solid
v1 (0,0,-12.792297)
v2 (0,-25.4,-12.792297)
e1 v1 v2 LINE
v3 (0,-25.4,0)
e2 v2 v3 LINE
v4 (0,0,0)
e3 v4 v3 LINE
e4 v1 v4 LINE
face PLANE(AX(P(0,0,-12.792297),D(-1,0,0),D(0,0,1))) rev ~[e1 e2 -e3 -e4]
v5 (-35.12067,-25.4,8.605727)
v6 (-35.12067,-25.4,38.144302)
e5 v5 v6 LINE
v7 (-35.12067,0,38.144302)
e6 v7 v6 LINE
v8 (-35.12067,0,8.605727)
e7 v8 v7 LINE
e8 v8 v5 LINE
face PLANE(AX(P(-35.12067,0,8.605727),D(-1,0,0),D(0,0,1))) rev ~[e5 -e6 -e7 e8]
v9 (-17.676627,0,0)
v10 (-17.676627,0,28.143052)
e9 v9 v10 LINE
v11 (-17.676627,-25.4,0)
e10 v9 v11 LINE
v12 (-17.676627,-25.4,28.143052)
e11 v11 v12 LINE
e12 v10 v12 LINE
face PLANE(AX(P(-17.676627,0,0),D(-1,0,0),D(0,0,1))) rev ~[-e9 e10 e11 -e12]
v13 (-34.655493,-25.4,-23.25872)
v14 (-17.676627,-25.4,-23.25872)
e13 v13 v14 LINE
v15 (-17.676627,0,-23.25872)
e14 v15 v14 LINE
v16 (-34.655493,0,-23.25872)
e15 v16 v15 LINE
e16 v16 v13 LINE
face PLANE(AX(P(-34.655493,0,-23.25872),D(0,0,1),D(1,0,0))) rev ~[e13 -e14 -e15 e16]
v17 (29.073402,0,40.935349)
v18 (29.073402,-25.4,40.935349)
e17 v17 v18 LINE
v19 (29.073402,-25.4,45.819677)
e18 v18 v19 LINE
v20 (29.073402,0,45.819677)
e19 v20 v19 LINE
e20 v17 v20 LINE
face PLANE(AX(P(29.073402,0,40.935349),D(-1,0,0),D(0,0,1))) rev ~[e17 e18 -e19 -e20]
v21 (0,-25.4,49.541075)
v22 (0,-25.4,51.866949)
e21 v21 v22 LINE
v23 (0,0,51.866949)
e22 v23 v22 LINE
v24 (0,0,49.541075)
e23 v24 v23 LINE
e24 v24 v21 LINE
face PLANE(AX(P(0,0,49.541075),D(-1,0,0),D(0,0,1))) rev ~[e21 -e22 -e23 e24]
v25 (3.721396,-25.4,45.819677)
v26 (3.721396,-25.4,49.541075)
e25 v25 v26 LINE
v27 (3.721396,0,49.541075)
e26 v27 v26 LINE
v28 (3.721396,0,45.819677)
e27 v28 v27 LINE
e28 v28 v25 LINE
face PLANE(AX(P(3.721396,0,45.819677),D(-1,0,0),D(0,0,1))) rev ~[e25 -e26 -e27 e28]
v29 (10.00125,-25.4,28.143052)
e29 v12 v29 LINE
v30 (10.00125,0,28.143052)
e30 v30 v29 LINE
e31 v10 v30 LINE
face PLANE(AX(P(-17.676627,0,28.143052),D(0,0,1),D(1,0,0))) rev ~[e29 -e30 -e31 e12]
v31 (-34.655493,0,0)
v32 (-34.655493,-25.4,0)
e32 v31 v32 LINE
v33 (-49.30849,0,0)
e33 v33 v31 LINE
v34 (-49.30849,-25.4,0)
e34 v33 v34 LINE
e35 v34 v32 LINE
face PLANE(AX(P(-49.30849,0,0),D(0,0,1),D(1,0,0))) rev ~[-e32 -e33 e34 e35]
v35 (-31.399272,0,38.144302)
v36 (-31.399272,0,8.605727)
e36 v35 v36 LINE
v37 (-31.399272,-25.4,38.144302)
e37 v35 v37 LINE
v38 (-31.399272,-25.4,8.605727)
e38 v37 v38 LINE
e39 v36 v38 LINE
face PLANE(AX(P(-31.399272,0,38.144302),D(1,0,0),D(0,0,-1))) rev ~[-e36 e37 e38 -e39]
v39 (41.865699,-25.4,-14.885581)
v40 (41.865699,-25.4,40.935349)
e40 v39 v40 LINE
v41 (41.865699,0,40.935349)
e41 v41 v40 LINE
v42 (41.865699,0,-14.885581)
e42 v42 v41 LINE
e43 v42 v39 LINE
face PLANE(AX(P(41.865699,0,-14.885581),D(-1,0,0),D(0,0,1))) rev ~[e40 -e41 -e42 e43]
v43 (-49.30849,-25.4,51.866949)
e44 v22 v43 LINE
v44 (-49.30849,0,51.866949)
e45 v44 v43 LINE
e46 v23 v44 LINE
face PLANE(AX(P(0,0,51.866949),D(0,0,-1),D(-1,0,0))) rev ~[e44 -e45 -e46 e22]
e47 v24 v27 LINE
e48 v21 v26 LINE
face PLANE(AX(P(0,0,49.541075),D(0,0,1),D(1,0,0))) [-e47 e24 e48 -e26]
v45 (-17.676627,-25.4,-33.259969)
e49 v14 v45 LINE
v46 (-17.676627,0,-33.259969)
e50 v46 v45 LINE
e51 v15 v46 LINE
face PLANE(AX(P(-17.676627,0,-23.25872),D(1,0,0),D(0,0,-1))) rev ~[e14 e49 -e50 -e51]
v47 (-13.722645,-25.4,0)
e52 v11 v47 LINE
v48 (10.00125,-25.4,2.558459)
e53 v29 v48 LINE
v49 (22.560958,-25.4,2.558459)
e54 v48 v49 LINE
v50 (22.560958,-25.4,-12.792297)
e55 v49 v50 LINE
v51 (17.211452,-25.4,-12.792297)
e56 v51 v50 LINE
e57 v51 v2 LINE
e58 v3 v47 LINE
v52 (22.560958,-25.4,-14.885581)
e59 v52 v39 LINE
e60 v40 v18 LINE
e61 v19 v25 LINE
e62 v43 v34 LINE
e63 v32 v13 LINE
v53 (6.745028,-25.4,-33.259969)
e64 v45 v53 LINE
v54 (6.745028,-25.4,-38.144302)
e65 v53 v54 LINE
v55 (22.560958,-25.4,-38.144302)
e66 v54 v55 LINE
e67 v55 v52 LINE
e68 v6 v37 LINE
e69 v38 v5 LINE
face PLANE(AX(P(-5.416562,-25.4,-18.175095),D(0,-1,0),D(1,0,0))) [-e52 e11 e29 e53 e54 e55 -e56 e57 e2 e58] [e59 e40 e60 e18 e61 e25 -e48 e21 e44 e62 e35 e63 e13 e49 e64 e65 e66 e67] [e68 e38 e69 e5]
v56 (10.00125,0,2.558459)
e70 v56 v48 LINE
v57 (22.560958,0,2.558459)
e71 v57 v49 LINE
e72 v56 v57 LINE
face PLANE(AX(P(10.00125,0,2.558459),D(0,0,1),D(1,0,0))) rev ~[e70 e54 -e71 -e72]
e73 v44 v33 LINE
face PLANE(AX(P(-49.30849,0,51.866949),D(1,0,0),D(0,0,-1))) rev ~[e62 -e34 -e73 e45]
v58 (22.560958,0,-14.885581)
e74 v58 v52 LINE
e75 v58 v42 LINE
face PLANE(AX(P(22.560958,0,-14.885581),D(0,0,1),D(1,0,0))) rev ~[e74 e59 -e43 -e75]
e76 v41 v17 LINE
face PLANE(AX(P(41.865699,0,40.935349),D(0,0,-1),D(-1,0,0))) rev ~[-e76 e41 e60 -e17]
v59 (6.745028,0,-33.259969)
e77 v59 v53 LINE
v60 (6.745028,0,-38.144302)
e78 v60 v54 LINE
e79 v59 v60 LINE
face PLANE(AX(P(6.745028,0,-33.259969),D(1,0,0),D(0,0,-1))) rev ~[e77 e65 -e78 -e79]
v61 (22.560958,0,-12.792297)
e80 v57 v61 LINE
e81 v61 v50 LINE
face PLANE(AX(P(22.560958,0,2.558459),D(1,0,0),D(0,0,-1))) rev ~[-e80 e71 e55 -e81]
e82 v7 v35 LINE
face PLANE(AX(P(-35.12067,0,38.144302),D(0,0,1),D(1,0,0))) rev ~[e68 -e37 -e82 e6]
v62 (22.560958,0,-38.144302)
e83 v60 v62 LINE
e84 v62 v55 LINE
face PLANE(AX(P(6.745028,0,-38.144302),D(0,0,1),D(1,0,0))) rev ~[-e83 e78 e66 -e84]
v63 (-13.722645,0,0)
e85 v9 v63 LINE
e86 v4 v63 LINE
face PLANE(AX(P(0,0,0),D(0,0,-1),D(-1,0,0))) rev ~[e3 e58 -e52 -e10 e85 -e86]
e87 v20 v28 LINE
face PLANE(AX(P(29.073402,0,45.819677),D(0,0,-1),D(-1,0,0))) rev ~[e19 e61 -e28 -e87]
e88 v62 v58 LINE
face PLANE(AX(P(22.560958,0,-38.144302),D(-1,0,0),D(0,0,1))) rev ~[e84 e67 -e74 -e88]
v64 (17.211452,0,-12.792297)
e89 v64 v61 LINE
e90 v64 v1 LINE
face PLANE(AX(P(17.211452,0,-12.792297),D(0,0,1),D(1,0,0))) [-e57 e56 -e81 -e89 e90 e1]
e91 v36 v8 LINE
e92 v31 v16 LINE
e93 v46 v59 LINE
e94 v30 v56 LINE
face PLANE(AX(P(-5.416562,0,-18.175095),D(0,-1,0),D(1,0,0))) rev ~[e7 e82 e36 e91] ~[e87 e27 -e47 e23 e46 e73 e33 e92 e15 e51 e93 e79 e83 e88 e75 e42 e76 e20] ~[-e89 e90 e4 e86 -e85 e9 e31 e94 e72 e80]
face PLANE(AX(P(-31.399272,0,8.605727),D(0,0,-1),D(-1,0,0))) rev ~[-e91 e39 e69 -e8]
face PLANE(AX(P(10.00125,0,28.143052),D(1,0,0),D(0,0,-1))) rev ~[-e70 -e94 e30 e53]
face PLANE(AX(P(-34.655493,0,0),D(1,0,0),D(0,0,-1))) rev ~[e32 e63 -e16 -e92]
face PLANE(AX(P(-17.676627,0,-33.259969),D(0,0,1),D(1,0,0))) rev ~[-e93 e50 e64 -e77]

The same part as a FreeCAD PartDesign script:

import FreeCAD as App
import Part
import Sketcher

V = App.Vector
Q = App.Units.Quantity

doc = App.newDocument("Part")
body = doc.addObject("PartDesign::Body", "Body")

# Sketch on XZ plane
sketch1 = body.newObject("Sketcher::SketchObject", "Sketch")
sketch1.AttachmentSupport = (doc.getObject("XZ_Plane"), [""])
sketch1.MapMode = "FlatFace"
sketch1.addGeometry([
    Part.LineSegment(V(-49.3, 51.9, 0), V(-49.3, 0, 0)),  # 0
    Part.LineSegment(V(-49.3, 0, 0), V(-34.7, 0, 0)),  # 1
    Part.LineSegment(V(-34.7, 0, 0), V(-34.7, -23.3, 0)),  # 2
    Part.LineSegment(V(-34.7, -23.3, 0), V(-17.7, -23.3, 0)),  # 3
    Part.LineSegment(V(-17.7, -23.3, 0), V(-17.7, -33.3, 0)),  # 4
    Part.LineSegment(V(-17.7, -33.3, 0), V(6.7, -33.3, 0)),  # 5
    Part.LineSegment(V(6.7, -33.3, 0), V(6.7, -38.1, 0)),  # 6
    Part.LineSegment(V(6.7, -38.1, 0), V(22.6, -38.1, 0)),  # 7
    Part.LineSegment(V(22.6, -38.1, 0), V(22.6, -14.9, 0)),  # 8
    Part.LineSegment(V(22.6, -14.9, 0), V(41.9, -14.9, 0)),  # 9
    Part.LineSegment(V(41.9, -14.9, 0), V(41.9, 40.9, 0)),  # 10
    Part.LineSegment(V(41.9, 40.9, 0), V(29.1, 40.9, 0)),  # 11
    Part.LineSegment(V(29.1, 40.9, 0), V(29.1, 45.8, 0)),  # 12
    Part.LineSegment(V(29.1, 45.8, 0), V(3.7, 45.8, 0)),  # 13
    Part.LineSegment(V(3.7, 45.8, 0), V(3.7, 49.5, 0)),  # 14
    Part.LineSegment(V(3.7, 49.5, 0), V(0, 49.5, 0)),  # 15
    Part.LineSegment(V(0, 49.5, 0), V(0, 51.9, 0)),  # 16
    Part.LineSegment(V(0, 51.9, 0), V(-49.3, 51.9, 0)),  # 17
    Part.LineSegment(V(10, 2.6, 0), V(22.6, 2.6, 0)),  # 18
    Part.LineSegment(V(22.6, 2.6, 0), V(22.6, -12.8, 0)),  # 19
    Part.LineSegment(V(22.6, -12.8, 0), V(17.2, -12.8, 0)),  # 20
    Part.LineSegment(V(17.2, -12.8, 0), V(0, -12.8, 0)),  # 21
    Part.LineSegment(V(0, -12.8, 0), V(0, 0, 0)),  # 22
    Part.LineSegment(V(0, 0, 0), V(-13.7, 0, 0)),  # 23
    Part.LineSegment(V(-13.7, 0, 0), V(-17.7, 0, 0)),  # 24
    Part.LineSegment(V(-17.7, 0, 0), V(-17.7, 28.1, 0)),  # 25
    Part.LineSegment(V(-17.7, 28.1, 0), V(10, 28.1, 0)),  # 26
    Part.LineSegment(V(10, 28.1, 0), V(10, 2.6, 0)),  # 27
    Part.LineSegment(V(-31.4, 8.6, 0), V(-35.1, 8.6, 0)),  # 28
    Part.LineSegment(V(-35.1, 8.6, 0), V(-35.1, 38.1, 0)),  # 29
    Part.LineSegment(V(-35.1, 38.1, 0), V(-31.4, 38.1, 0)),  # 30
    Part.LineSegment(V(-31.4, 38.1, 0), V(-31.4, 8.6, 0)),  # 31
], False)
sketch1.addConstraint([
    Sketcher.Constraint("Coincident", 0, 2, 1, 1),
    Sketcher.Constraint("Coincident", 1, 2, 2, 1),
    Sketcher.Constraint("Coincident", 2, 2, 3, 1),
    Sketcher.Constraint("Coincident", 3, 2, 4, 1),
    Sketcher.Constraint("Coincident", 4, 2, 5, 1),
    Sketcher.Constraint("Coincident", 5, 2, 6, 1),
    Sketcher.Constraint("Coincident", 6, 2, 7, 1),
    Sketcher.Constraint("Coincident", 7, 2, 8, 1),
    Sketcher.Constraint("Coincident", 8, 2, 9, 1),
    Sketcher.Constraint("Coincident", 9, 2, 10, 1),
    Sketcher.Constraint("Coincident", 10, 2, 11, 1),
    Sketcher.Constraint("Coincident", 11, 2, 12, 1),
    Sketcher.Constraint("Coincident", 12, 2, 13, 1),
    Sketcher.Constraint("Coincident", 13, 2, 14, 1),
    Sketcher.Constraint("Coincident", 14, 2, 15, 1),
    Sketcher.Constraint("Coincident", 15, 2, 16, 1),
    Sketcher.Constraint("Coincident", 16, 2, 17, 1),
    Sketcher.Constraint("Coincident", 17, 2, 0, 1),
    Sketcher.Constraint("Coincident", 18, 2, 19, 1),
    Sketcher.Constraint("Coincident", 19, 2, 20, 1),
    Sketcher.Constraint("Coincident", 20, 2, 21, 1),
    Sketcher.Constraint("Coincident", 21, 2, 22, 1),
    Sketcher.Constraint("Coincident", 22, 2, 23, 1),
    Sketcher.Constraint("Coincident", 23, 2, 24, 1),
    Sketcher.Constraint("Coincident", 24, 2, 25, 1),
    Sketcher.Constraint("Coincident", 25, 2, 26, 1),
    Sketcher.Constraint("Coincident", 26, 2, 27, 1),
    Sketcher.Constraint("Coincident", 27, 2, 18, 1),
    Sketcher.Constraint("Coincident", 28, 2, 29, 1),
    Sketcher.Constraint("Coincident", 29, 2, 30, 1),
    Sketcher.Constraint("Coincident", 30, 2, 31, 1),
    Sketcher.Constraint("Coincident", 31, 2, 28, 1),
    Sketcher.Constraint("Vertical", 0),
    Sketcher.Constraint("Horizontal", 1),
    Sketcher.Constraint("Vertical", 2),
    Sketcher.Constraint("Horizontal", 3),
    Sketcher.Constraint("Vertical", 4),
    Sketcher.Constraint("Horizontal", 5),
    Sketcher.Constraint("Vertical", 6),
    Sketcher.Constraint("Horizontal", 7),
    Sketcher.Constraint("Vertical", 8),
    Sketcher.Constraint("Horizontal", 9),
    Sketcher.Constraint("Vertical", 10),
    Sketcher.Constraint("Horizontal", 11),
    Sketcher.Constraint("Vertical", 12),
    Sketcher.Constraint("Horizontal", 13),
    Sketcher.Constraint("Vertical", 14),
    Sketcher.Constraint("Horizontal", 15),
    Sketcher.Constraint("Vertical", 16),
    Sketcher.Constraint("Horizontal", 17),
    Sketcher.Constraint("Horizontal", 18),
    Sketcher.Constraint("Vertical", 19),
    Sketcher.Constraint("Horizontal", 20),
    Sketcher.Constraint("Horizontal", 21),
    Sketcher.Constraint("Vertical", 22),
    Sketcher.Constraint("Horizontal", 23),
    Sketcher.Constraint("Horizontal", 24),
    Sketcher.Constraint("Vertical", 25),
    Sketcher.Constraint("Horizontal", 26),
    Sketcher.Constraint("Vertical", 27),
    Sketcher.Constraint("Horizontal", 28),
    Sketcher.Constraint("Vertical", 29),
    Sketcher.Constraint("Horizontal", 30),
    Sketcher.Constraint("Vertical", 31),
    Sketcher.Constraint("Coincident", 22, 2, -1, 1),
    Sketcher.Constraint("PointOnObject", 0, 2, -1),
    Sketcher.Constraint("PointOnObject", 15, 2, -2),
    Sketcher.Constraint("Vertical", 8, 2, 18, 2),
    Sketcher.Constraint("Vertical", 4, 2, 24, 2),
    Sketcher.Constraint("Equal", 15, 28),
    Sketcher.Constraint("Equal", 2, 8),
    Sketcher.Constraint("Equal", 30, 14),
    Sketcher.Constraint("Equal", 11, 22),
    Sketcher.Constraint("DistanceX", 7, 1, 7, 2, 15.81593),
    Sketcher.Constraint("DistanceX", 9, 1, 9, 2, 19.304741),
    Sketcher.Constraint("DistanceX", 17, 2, 17, 1, 49.30849),
    Sketcher.Constraint("DistanceX", 18, 1, 18, 2, 12.559708),
    Sketcher.Constraint("DistanceY", 0, 2, 0, 1, 51.866949),
    Sketcher.Constraint("DistanceY", 2, 2, 2, 1, 23.25872),
    Sketcher.Constraint("DistanceY", 4, 2, 4, 1, 10.00125),
    Sketcher.Constraint("DistanceY", 10, 1, 10, 2, 55.82093),
    Sketcher.Constraint("DistanceY", 12, 1, 12, 2, 4.884329),
    Sketcher.Constraint("DistanceY", 6, 2, -1, 1, 38.144302),
    Sketcher.Constraint("DistanceX", -1, 1, 9, 2, 41.865699),
    Sketcher.Constraint("DistanceY", -1, 1, 29, 2, 38.144302),
    Sketcher.Constraint("DistanceX", 1, 1, 1, 2, 14.652997),
    Sketcher.Constraint("DistanceX", 3, 1, 3, 2, 16.978865),
    Sketcher.Constraint("DistanceX", 11, 2, 11, 1, 12.792297),
    Sketcher.Constraint("DistanceX", 13, 2, 13, 1, 25.352006),
    Sketcher.Constraint("DistanceX", 20, 2, 20, 1, 5.349506),
    Sketcher.Constraint("DistanceX", 23, 2, 23, 1, 13.722645),
    Sketcher.Constraint("DistanceY", 19, 2, 19, 1, 15.350756),
    Sketcher.Constraint("DistanceY", 25, 1, 25, 2, 28.143052),
    Sketcher.Constraint("DistanceY", 29, 1, 29, 2, 29.538575),
    Sketcher.Constraint("DistanceX", 28, 2, -1, 1, 35.12067),
])
pad1 = body.newObject("PartDesign::Pad", "Pad")
pad1.Profile = sketch1
pad1.Length = Q("1 in")

doc.recompute()
